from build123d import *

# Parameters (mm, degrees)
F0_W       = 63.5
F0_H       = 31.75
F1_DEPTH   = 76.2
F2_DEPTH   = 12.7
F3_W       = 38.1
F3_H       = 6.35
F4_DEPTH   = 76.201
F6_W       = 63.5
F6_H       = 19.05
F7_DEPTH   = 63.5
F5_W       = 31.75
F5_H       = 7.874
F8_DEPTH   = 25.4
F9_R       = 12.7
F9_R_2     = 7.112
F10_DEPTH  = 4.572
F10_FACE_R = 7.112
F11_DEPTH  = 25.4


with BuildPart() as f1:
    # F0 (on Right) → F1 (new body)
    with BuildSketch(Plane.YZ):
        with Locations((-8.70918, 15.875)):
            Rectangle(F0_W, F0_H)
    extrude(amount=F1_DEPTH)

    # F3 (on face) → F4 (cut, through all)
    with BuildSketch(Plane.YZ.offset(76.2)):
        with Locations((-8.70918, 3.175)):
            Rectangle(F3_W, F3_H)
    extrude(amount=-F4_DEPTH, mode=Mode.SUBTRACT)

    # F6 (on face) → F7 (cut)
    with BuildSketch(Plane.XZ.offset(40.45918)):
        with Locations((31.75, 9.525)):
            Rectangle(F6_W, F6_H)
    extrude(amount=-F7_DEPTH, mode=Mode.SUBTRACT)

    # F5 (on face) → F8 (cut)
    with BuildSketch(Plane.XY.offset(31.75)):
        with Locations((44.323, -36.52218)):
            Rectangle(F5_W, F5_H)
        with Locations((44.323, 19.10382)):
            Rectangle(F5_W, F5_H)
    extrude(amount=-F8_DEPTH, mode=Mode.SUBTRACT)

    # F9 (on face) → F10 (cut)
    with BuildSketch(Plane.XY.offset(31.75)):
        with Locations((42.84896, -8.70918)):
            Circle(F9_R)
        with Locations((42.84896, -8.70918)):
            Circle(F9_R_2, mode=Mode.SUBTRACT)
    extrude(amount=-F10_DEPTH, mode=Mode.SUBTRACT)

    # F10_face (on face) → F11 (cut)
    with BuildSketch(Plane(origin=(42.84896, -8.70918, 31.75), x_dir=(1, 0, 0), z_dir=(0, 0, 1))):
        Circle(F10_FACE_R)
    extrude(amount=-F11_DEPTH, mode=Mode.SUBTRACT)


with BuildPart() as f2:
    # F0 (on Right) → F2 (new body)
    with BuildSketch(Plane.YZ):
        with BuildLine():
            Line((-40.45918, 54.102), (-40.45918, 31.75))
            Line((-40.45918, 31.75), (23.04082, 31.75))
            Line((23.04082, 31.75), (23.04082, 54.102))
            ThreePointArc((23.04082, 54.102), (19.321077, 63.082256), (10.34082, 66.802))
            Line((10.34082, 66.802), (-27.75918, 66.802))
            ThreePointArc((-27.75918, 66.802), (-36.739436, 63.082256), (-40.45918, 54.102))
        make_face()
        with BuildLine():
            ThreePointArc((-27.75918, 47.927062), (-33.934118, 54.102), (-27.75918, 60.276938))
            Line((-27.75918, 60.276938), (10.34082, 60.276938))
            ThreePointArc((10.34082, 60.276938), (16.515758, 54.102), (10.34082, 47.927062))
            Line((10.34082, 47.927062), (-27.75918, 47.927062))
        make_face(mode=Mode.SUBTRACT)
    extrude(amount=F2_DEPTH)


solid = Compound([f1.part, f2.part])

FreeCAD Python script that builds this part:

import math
import FreeCAD as App
import Part
import Sketcher
Q = App.Units.Quantity

doc = App.newDocument("Part")
body = doc.addObject("PartDesign::Body", "Body")

# Sketch on YZ plane
sketch1 = doc.addObject("Sketcher::SketchObject", "Sketch")
body.addObject(sketch1)
sketch1.AttachmentSupport = (doc.YZ_Plane, [""])
sketch1.MapMode = "FlatFace"
sketch1.addGeometry([
    Part.LineSegment(App.Vector(-40, 32, 0), App.Vector(-40, 0, 0)),
    Part.LineSegment(App.Vector(-40, 0, 0), App.Vector(23, 0, 0)),
    Part.LineSegment(App.Vector(23, 0, 0), App.Vector(23, 32, 0)),
    Part.LineSegment(App.Vector(23, 32, 0), App.Vector(-40, 32, 0)),
], False)
sketch1.addConstraint([
    Sketcher.Constraint("Coincident", 0, 2, 1, 1),
    Sketcher.Constraint("Coincident", 1, 2, 2, 1),
    Sketcher.Constraint("Coincident", 2, 2, 3, 1),
    Sketcher.Constraint("Coincident", 3, 2, 0, 1),
    Sketcher.Constraint("Vertical", 0),
    Sketcher.Constraint("Horizontal", 1),
    Sketcher.Constraint("Vertical", 2),
    Sketcher.Constraint("Horizontal", 3),
    Sketcher.Constraint("PointOnObject", 0, 2, -1),
    Sketcher.Constraint("DistanceX", 1, 1, 1, 2, Q("2.5 in")),
    Sketcher.Constraint("DistanceY", 0, 2, 0, 1, Q("1.25 in")),
    Sketcher.Constraint("DistanceX", 0, 2, -1, 1, Q("40.45918 mm")),
])
pad1 = doc.addObject("PartDesign::Pad", "Pad")
body.addObject(pad1)
pad1.Profile = sketch1
pad1.Length = Q("3 in")

# Sketch on YZ plane
sketch2 = doc.addObject("Sketcher::SketchObject", "Sketch001")
body.addObject(sketch2)
sketch2.AttachmentSupport = (doc.YZ_Plane, [""])
sketch2.MapMode = "FlatFace"
sketch2.AttachmentOffset = App.Placement(App.Vector(0, 0, 3 * 25.4), App.Rotation())
sketch2.addGeometry([
    Part.LineSegment(App.Vector(-28, 6, 0), App.Vector(-28, 0, 0)),
    Part.LineSegment(App.Vector(-28, 0, 0), App.Vector(10, 0, 0)),
    Part.LineSegment(App.Vector(10, 0, 0), App.Vector(10, 6, 0)),
    Part.LineSegment(App.Vector(10, 6, 0), App.Vector(-28, 6, 0)),
], False)
sketch2.addConstraint([
    Sketcher.Constraint("Coincident", 0, 2, 1, 1),
    Sketcher.Constraint("Coincident", 1, 2, 2, 1),
    Sketcher.Constraint("Coincident", 2, 2, 3, 1),
    Sketcher.Constraint("Coincident", 3, 2, 0, 1),
    Sketcher.Constraint("Vertical", 0),
    Sketcher.Constraint("Horizontal", 1),
    Sketcher.Constraint("Vertical", 2),
    Sketcher.Constraint("Horizontal", 3),
    Sketcher.Constraint("PointOnObject", 0, 2, -1),
    Sketcher.Constraint("DistanceX", 1, 1, 1, 2, Q("1.5 in")),
    Sketcher.Constraint("DistanceY", 0, 2, 0, 1, Q("0.25 in")),
    Sketcher.Constraint("DistanceX", 0, 2, -1, 1, Q("27.75918 mm")),
])
pocket1 = doc.addObject("PartDesign::Pocket", "Pocket")
body.addObject(pocket1)
pocket1.Profile = sketch2
pocket1.Type = "ThroughAll"

# Sketch on XZ plane
sketch3 = doc.addObject("Sketcher::SketchObject", "Sketch002")
body.addObject(sketch3)
sketch3.AttachmentSupport = (doc.XZ_Plane, [""])
sketch3.MapMode = "FlatFace"
sketch3.AttachmentOffset = App.Placement(App.Vector(0, 0, 40.45918), App.Rotation())
sketch3.addGeometry([
    Part.LineSegment(App.Vector(0, 19, 0), App.Vector(0, 0, 0)),
    Part.LineSegment(App.Vector(0, 0, 0), App.Vector(64, 0, 0)),
    Part.LineSegment(App.Vector(64, 0, 0), App.Vector(64, 19, 0)),
    Part.LineSegment(App.Vector(64, 19, 0), App.Vector(0, 19, 0)),
], False)
sketch3.addConstraint([
    Sketcher.Constraint("Coincident", 0, 2, 1, 1),
    Sketcher.Constraint("Coincident", 1, 2, 2, 1),
    Sketcher.Constraint("Coincident", 2, 2, 3, 1),
    Sketcher.Constraint("Coincident", 3, 2, 0, 1),
    Sketcher.Constraint("Vertical", 0),
    Sketcher.Constraint("Horizontal", 1),
    Sketcher.Constraint("Vertical", 2),
    Sketcher.Constraint("Horizontal", 3),
    Sketcher.Constraint("Coincident", 0, 2, -1, 1),
    Sketcher.Constraint("DistanceX", 1, 1, 1, 2, Q("2.5 in")),
    Sketcher.Constraint("DistanceY", 0, 2, 0, 1, Q("0.75 in")),
])
pocket2 = doc.addObject("PartDesign::Pocket", "Pocket001")
body.addObject(pocket2)
pocket2.Profile = sketch3
pocket2.Length = Q("2.5 in")

# Sketch on XY plane
sketch4 = doc.addObject("Sketcher::SketchObject", "Sketch003")
body.addObject(sketch4)
sketch4.AttachmentSupport = (doc.XY_Plane, [""])
sketch4.MapMode = "FlatFace"
sketch4.AttachmentOffset = App.Placement(App.Vector(0, 0, 1.25 * 25.4), App.Rotation())
sketch4.addGeometry([
    Part.LineSegment(App.Vector(28, -33, 0), App.Vector(28, -40, 0)),  # 0
    Part.LineSegment(App.Vector(28, -40, 0), App.Vector(60, -40, 0)),  # 1
    Part.LineSegment(App.Vector(60, -40, 0), App.Vector(60, -33, 0)),  # 2
    Part.LineSegment(App.Vector(60, -33, 0), App.Vector(28, -33, 0)),  # 3
    Part.LineSegment(App.Vector(28, 23, 0), App.Vector(28, 15, 0)),  # 4
    Part.LineSegment(App.Vector(28, 15, 0), App.Vector(60, 15, 0)),  # 5
    Part.LineSegment(App.Vector(60, 15, 0), App.Vector(60, 23, 0)),  # 6
    Part.LineSegment(App.Vector(60, 23, 0), App.Vector(28, 23, 0)),  # 7
], False)
sketch4.addConstraint([
    Sketcher.Constraint("Coincident", 0, 2, 1, 1),
    Sketcher.Constraint("Coincident", 1, 2, 2, 1),
    Sketcher.Constraint("Coincident", 2, 2, 3, 1),
    Sketcher.Constraint("Coincident", 3, 2, 0, 1),
    Sketcher.Constraint("Coincident", 4, 2, 5, 1),
    Sketcher.Constraint("Coincident", 5, 2, 6, 1),
    Sketcher.Constraint("Coincident", 6, 2, 7, 1),
    Sketcher.Constraint("Coincident", 7, 2, 4, 1),
    Sketcher.Constraint("Vertical", 0),
    Sketcher.Constraint("Horizontal", 1),
    Sketcher.Constraint("Vertical", 2),
    Sketcher.Constraint("Horizontal", 3),
    Sketcher.Constraint("Vertical", 4),
    Sketcher.Constraint("Horizontal", 5),
    Sketcher.Constraint("Vertical", 6),
    Sketcher.Constraint("Horizontal", 7),
    Sketcher.Constraint("Vertical", 3, 2, 4, 2),
    Sketcher.Constraint("Vertical", 2, 2, 5, 2),
    Sketcher.Constraint("Equal", 2, 4),
    Sketcher.Constraint("DistanceX", 1, 1, 1, 2, Q("1.25 in")),
    Sketcher.Constraint("DistanceY", 0, 2, 0, 1, Q("0.31 in")),
    Sketcher.Constraint("DistanceY", 1, 2, 6, 2, Q("2.5 in")),
    Sketcher.Constraint("DistanceX", -1, 1, 0, 2, Q("1.12 in")),
    Sketcher.Constraint("DistanceY", 0, 2, -1, 1, Q("40.45918 mm")),
])
pocket3 = doc.addObject("PartDesign::Pocket", "Pocket002")
body.addObject(pocket3)
pocket3.Profile = sketch4
pocket3.Length = Q("1 in")

# Sketch on XY plane
sketch5 = doc.addObject("Sketcher::SketchObject", "Sketch004")
body.addObject(sketch5)
sketch5.AttachmentSupport = (doc.XY_Plane, [""])
sketch5.MapMode = "FlatFace"
sketch5.AttachmentOffset = App.Placement(App.Vector(0, 0, 1.25 * 25.4), App.Rotation())
sketch5.addGeometry([
    Part.Circle(App.Vector(43, -9, 0), App.Vector(0, 0, 1), 13),
    Part.Circle(App.Vector(43, -9, 0), App.Vector(0, 0, 1), 7),
], False)
sketch5.addConstraint([
    Sketcher.Constraint("Coincident", 1, 3, 0, 3),
    Sketcher.Constraint("Diameter", 0, Q("1 in")),
    Sketcher.Constraint("Diameter", 1, Q("0.56 in")),
    Sketcher.Constraint("DistanceX", -1, 1, 0, 3, Q("42.84896 mm")),
    Sketcher.Constraint("DistanceY", 0, 3, -1, 1, Q("8.70918 mm")),
])
pocket4 = doc.addObject("PartDesign::Pocket", "Pocket003")
body.addObject(pocket4)
pocket4.Profile = sketch5
pocket4.Length = Q("0.18 in")

# Sketch on XY plane
sketch6 = doc.addObject("Sketcher::SketchObject", "Sketch005")
body.addObject(sketch6)
sketch6.AttachmentSupport = (doc.XY_Plane, [""])
sketch6.MapMode = "FlatFace"
sketch6.AttachmentOffset = App.Placement(App.Vector(0, 0, 1.25 * 25.4), App.Rotation())
sketch6.addGeometry(Part.Circle(App.Vector(43, -9, 0), App.Vector(0, 0, 1), 7), False)
sketch6.addConstraint([
    Sketcher.Constraint("Diameter", 0, Q("0.56 in")),
    Sketcher.Constraint("DistanceX", -1, 1, 0, 3, Q("42.84896 mm")),
    Sketcher.Constraint("DistanceY", 0, 3, -1, 1, Q("8.70918 mm")),
])
pocket5 = doc.addObject("PartDesign::Pocket", "Pocket004")
body.addObject(pocket5)
pocket5.Profile = sketch6
pocket5.Length = Q("1 in")
body2 = doc.addObject("PartDesign::Body", "Body001")

# Sketch on YZ plane
sketch7 = doc.addObject("Sketcher::SketchObject", "Sketch006")
body2.addObject(sketch7)
sketch7.AttachmentSupport = (doc.getObject("YZ_Plane001"), [""])
sketch7.MapMode = "FlatFace"
sketch7.addGeometry([
    Part.LineSegment(App.Vector(-40, 54, 0), App.Vector(-40, 32, 0)),  # 0
    Part.LineSegment(App.Vector(-40, 32, 0), App.Vector(23, 32, 0)),  # 1
    Part.LineSegment(App.Vector(23, 32, 0), App.Vector(23, 54, 0)),  # 2
    Part.ArcOfCircle(Part.Circle(App.Vector(10, 54, 0), App.Vector(0, 0, 1), 13), math.radians(0), math.radians(90)),  # 3
    Part.LineSegment(App.Vector(10, 67, 0), App.Vector(-28, 67, 0)),  # 4
    Part.ArcOfCircle(Part.Circle(App.Vector(-28, 54, 0), App.Vector(0, 0, 1), 13), math.radians(90), math.radians(180)),  # 5
    Part.LineSegment(App.Vector(10, 48, 0), App.Vector(-28, 48, 0)),  # 6
    Part.ArcOfCircle(Part.Circle(App.Vector(-28, 54, 0), App.Vector(0, 0, 1), 6), math.radians(90), math.radians(270)),  # 7
    Part.LineSegment(App.Vector(-28, 60, 0), App.Vector(10, 60, 0)),  # 8
    Part.ArcOfCircle(Part.Circle(App.Vector(10, 54, 0), App.Vector(0, 0, 1), 6), math.radians(-90), math.radians(90)),  # 9
], False)
sketch7.addConstraint([
    Sketcher.Constraint("Coincident", 0, 2, 1, 1),
    Sketcher.Constraint("Coincident", 1, 2, 2, 1),
    Sketcher.Constraint("Tangent", 2, 2, 3, 1),
    Sketcher.Constraint("Tangent", 3, 2, 4, 1),
    Sketcher.Constraint("Tangent", 4, 2, 5, 1),
    Sketcher.Constraint("Tangent", 5, 2, 0, 1),
    Sketcher.Constraint("Tangent", 6, 2, 7, 2),
    Sketcher.Constraint("Tangent", 7, 1, 8, 1),
    Sketcher.Constraint("Tangent", 8, 2, 9, 2),
    Sketcher.Constraint("Tangent", 9, 1, 6, 1),
    Sketcher.Constraint("Vertical", 0),
    Sketcher.Constraint("Horizontal", 1),
    Sketcher.Constraint("Vertical", 2),
    Sketcher.Constraint("Horizontal", 4),
    Sketcher.Constraint("Horizontal", 6),
    Sketcher.Constraint("Horizontal", 8),
    Sketcher.Constraint("Coincident", 7, 3, 5, 3),
    Sketcher.Constraint("Coincident", 9, 3, 3, 3),
    Sketcher.Constraint("Radius", 3, Q("0.4999999 in")),
    Sketcher.Constraint("DistanceX", 1, 1, 1, 2, Q("2.5 in")),
    Sketcher.Constraint("DistanceY", 0, 2, 0, 1, Q("0.88 in")),
    Sketcher.Constraint("DistanceY", -1, 1, 3, 3, Q("2.1300001 in")),
    Sketcher.Constraint("Radius", 7, Q("6.174938 mm")),
    Sketcher.Constraint("DistanceX", -1, 1, 3, 3, Q("10.340821 mm")),
])
pad2 = doc.addObject("PartDesign::Pad", "Pad001")
body2.addObject(pad2)
pad2.Profile = sketch7
pad2.Length = Q("0.5 in")

doc.recompute()
